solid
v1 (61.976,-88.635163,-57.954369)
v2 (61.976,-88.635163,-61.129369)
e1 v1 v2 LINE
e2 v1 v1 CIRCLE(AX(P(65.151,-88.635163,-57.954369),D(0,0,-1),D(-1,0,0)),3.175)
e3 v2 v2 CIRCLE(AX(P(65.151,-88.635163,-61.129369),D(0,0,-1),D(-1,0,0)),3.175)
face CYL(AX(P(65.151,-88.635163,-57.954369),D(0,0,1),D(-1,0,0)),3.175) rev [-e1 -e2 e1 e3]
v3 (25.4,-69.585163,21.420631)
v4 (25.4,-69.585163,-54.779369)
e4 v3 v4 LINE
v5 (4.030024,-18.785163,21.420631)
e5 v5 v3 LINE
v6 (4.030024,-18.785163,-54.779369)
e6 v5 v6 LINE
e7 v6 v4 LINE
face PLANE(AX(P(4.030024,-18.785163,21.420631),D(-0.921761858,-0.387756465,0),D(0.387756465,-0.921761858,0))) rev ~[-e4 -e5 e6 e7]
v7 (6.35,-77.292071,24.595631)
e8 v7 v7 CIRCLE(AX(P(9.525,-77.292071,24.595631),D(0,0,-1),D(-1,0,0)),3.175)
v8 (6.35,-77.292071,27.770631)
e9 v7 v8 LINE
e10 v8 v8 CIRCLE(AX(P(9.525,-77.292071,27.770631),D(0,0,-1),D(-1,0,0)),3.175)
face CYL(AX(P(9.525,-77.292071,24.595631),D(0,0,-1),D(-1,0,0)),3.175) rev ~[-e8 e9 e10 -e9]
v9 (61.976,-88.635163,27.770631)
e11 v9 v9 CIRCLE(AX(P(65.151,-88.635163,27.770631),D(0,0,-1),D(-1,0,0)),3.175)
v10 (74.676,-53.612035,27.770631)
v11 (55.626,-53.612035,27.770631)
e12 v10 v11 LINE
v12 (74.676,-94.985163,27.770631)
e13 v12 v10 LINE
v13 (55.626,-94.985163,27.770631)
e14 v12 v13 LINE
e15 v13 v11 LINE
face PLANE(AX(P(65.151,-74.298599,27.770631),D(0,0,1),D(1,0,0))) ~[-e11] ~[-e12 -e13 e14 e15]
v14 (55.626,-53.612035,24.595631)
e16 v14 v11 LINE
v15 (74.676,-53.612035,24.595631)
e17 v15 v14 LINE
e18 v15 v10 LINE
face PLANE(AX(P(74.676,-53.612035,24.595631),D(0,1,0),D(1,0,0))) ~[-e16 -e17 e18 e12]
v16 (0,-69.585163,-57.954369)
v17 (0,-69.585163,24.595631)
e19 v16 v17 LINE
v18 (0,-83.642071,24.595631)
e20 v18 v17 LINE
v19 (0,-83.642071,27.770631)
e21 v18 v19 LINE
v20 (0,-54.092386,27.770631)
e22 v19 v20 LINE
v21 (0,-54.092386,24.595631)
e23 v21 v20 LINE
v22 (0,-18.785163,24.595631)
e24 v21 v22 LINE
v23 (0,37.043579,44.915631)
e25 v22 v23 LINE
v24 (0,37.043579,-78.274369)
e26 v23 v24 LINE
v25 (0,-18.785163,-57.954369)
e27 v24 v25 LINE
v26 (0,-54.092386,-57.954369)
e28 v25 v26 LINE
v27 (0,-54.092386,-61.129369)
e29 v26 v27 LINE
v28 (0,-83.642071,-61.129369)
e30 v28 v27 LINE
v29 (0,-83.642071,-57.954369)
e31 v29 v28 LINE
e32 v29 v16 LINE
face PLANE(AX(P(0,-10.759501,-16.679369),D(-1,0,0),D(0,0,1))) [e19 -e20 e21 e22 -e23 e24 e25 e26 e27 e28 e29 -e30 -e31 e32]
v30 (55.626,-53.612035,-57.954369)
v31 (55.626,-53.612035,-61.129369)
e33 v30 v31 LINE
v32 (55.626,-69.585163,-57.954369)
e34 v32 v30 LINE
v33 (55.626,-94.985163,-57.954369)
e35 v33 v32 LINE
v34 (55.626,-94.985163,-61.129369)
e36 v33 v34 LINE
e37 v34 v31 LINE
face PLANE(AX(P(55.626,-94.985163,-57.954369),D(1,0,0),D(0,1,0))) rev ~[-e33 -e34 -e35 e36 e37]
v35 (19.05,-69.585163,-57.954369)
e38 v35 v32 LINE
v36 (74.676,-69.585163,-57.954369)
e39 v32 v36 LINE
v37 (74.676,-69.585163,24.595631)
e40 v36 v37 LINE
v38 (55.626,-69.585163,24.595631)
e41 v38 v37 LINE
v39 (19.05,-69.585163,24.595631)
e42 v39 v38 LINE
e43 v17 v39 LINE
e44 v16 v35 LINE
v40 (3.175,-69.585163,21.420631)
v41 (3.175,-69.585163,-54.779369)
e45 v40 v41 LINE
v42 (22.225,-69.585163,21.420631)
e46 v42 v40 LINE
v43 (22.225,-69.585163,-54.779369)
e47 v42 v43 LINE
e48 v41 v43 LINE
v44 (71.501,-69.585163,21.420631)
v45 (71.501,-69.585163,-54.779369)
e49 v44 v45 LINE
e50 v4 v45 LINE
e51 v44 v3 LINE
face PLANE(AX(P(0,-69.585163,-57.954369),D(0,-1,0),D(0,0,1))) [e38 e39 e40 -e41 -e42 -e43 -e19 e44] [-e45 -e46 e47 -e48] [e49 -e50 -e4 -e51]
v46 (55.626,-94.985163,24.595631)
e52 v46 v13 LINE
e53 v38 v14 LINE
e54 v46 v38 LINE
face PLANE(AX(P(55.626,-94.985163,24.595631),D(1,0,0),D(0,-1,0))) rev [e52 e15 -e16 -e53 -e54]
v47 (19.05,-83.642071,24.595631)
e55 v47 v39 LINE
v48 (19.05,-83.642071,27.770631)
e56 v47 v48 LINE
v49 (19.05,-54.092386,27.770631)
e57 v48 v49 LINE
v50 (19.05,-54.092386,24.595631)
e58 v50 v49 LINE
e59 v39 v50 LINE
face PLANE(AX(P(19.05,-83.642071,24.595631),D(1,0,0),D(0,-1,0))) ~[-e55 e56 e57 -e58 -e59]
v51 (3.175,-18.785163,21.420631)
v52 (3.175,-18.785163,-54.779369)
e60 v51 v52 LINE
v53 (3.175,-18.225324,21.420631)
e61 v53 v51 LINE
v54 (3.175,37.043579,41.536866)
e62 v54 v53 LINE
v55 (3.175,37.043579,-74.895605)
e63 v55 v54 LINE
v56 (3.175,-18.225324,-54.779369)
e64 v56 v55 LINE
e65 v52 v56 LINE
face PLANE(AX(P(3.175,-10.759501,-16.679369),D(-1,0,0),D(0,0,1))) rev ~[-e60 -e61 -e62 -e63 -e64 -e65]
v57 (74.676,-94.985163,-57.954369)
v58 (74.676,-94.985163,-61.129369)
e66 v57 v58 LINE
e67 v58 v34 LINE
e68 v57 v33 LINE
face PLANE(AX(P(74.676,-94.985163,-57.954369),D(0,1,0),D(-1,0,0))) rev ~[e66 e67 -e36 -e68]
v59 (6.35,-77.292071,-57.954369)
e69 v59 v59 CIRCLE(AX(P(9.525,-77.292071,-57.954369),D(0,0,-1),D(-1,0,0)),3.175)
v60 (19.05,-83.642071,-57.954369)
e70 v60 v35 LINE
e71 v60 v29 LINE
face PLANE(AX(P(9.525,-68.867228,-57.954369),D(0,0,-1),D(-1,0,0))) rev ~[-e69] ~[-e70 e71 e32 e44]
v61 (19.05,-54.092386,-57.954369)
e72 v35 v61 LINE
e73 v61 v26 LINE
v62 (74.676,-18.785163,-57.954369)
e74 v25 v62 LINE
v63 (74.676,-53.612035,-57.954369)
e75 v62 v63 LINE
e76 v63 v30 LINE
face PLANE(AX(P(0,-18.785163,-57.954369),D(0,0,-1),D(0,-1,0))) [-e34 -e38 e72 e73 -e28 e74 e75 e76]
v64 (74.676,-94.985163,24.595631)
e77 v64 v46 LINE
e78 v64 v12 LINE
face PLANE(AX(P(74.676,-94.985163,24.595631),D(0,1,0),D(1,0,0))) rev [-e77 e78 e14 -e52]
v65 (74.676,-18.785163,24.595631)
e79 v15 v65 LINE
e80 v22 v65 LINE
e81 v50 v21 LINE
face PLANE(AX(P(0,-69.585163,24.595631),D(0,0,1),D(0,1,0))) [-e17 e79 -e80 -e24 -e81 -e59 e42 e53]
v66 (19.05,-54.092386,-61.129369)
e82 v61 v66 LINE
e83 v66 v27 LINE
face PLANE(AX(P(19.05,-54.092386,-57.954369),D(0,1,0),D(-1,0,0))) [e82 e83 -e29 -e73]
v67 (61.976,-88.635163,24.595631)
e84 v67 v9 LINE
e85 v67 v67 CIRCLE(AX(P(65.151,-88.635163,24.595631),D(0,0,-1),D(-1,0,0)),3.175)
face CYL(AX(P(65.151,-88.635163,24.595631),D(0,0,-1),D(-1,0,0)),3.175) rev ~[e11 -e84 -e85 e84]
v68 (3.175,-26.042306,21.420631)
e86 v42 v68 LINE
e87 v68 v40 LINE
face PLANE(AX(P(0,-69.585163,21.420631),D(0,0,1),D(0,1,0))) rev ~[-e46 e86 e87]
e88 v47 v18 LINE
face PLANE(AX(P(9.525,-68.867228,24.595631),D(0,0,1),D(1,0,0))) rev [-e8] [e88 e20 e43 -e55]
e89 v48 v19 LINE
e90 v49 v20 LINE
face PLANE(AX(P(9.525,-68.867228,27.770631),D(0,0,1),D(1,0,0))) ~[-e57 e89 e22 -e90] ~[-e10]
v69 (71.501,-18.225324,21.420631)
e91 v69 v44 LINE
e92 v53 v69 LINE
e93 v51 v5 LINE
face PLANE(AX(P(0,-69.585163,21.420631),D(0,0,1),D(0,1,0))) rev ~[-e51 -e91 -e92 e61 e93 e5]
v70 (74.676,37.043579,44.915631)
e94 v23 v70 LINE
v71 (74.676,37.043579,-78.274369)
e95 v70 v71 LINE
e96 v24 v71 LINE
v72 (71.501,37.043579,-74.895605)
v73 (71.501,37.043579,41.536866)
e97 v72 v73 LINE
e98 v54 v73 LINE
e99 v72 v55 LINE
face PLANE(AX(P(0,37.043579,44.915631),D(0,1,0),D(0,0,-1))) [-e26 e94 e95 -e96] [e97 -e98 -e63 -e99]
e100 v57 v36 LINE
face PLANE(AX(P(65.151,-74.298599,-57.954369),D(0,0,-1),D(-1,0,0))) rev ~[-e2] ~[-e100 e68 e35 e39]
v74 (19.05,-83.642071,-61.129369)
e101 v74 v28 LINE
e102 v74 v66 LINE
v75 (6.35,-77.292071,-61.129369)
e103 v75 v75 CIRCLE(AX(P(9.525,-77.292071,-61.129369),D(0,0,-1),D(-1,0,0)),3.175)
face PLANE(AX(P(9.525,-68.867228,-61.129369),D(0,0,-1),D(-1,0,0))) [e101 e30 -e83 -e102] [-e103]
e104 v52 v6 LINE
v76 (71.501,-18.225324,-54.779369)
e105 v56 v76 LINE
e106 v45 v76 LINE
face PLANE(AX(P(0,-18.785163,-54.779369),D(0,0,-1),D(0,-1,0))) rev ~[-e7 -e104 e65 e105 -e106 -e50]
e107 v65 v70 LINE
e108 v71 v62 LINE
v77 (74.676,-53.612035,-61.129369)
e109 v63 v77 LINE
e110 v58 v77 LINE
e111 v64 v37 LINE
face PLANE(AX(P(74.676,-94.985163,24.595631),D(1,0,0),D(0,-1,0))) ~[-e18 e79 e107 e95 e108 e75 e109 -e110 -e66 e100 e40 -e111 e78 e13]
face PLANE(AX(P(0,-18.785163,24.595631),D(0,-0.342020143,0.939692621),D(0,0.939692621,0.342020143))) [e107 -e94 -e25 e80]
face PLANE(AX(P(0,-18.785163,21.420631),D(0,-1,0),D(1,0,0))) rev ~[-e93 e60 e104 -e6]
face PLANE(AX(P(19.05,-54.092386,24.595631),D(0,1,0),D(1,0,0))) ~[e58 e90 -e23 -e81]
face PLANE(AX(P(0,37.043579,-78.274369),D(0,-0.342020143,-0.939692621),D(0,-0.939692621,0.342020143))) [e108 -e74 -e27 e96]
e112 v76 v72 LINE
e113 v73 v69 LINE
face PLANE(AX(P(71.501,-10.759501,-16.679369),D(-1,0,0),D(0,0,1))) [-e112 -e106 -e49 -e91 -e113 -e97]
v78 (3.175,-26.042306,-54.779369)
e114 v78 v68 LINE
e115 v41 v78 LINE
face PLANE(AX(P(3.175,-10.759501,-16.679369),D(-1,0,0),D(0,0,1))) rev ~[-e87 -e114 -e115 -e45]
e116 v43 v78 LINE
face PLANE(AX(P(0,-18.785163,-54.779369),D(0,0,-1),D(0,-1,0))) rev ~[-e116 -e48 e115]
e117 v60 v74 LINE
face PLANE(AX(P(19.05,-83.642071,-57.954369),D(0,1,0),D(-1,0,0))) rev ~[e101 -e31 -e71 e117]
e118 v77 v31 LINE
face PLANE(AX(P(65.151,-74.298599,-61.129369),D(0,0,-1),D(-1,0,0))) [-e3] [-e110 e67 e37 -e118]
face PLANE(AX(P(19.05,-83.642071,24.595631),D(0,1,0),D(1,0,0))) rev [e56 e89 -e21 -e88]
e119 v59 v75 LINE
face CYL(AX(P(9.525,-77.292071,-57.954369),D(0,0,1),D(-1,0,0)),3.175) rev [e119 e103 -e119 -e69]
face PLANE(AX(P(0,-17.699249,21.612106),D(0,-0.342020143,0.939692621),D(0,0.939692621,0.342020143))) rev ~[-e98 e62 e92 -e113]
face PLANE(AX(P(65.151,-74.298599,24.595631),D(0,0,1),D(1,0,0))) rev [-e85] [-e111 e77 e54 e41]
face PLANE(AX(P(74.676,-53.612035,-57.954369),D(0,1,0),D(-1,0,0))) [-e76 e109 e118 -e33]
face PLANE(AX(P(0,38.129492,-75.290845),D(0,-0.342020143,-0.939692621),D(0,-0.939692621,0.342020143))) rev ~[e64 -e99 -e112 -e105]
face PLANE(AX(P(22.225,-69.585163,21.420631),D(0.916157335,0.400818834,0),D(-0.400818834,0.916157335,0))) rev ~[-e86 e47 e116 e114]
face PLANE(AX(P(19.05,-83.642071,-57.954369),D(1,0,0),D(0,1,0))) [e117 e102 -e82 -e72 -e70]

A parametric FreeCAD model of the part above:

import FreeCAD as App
import Part
import Sketcher
from FreeCAD import Vector
Q = App.Units.Quantity


def faces_at(feature, points):
    """Names of the faces that lie closest to the given points."""
    faces = feature.Shape.Faces
    near = lambda p: min(range(len(faces)), key=lambda i: faces[i].distToShape(Part.Vertex(*p))[0])
    return sorted({f"Face{near(p) + 1}" for p in points})


def add_polygon(sketch, points):
    """Adds a closed chain of lines whose ends are joined by coincident constraints."""
    first, n = sketch.GeometryCount, len(points)
    for a, b in zip(points, points[1:] + points[:1]):
        sketch.addGeometry(Part.LineSegment(App.Vector(*a, 0), App.Vector(*b, 0)), False)
    for i in range(n):
        sketch.addConstraint(Sketcher.Constraint("Coincident", first + i, 2, first + (i + 1) % n, 1))

doc = App.newDocument("Part")
body = doc.addObject("PartDesign::Body", "Body")

sketch1 = body.newObject("Sketcher::SketchObject", "Sketch")
sketch1.AttachmentSupport = (doc.getObject("YZ_Plane"), [""])
sketch1.MapMode = "FlatFace"
add_polygon(sketch1, [(37.043579, -78.274369), (37.043579, 44.915631), (-18.785163, 24.595631), (-69.585163, 24.595631), (-69.585163, -57.954369), (-18.785163, -57.954369)])
sketch1.addConstraint(Sketcher.Constraint("Vertical", 0))
sketch1.addConstraint(Sketcher.Constraint("Horizontal", 2))
sketch1.addConstraint(Sketcher.Constraint("Vertical", 3))
sketch1.addConstraint(Sketcher.Constraint("Horizontal", 4))
sketch1.addConstraint(Sketcher.Constraint("Vertical", 1, 2, 4, 2))
sketch1.addConstraint(Sketcher.Constraint("Equal", 1, 5))
sketch1.addConstraint(Sketcher.Constraint("DistanceX", 2, 2, 2, 1, Q("2 in")))
sketch1.addConstraint(Sketcher.Constraint("Angle", 1, Q("-160 deg")))
sketch1.addConstraint(Sketcher.Constraint("DistanceY", 0, 1, 0, 2, Q("4.85 in")))
sketch1.addConstraint(Sketcher.Constraint("DistanceY", 3, 2, 3, 1, Q("3.25 in")))
sketch1.addConstraint(Sketcher.Constraint("DistanceX", -1, 1, 0, 2, Q("37.043579 mm")))
sketch1.addConstraint(Sketcher.Constraint("DistanceY", -1, 1, 0, 2, Q("44.915631 mm")))
pad1 = body.newObject("PartDesign::Pad", "Pad")
pad1.Profile = sketch1
pad1.Length = Q("2.94 in")
doc.recompute()

thickness = body.newObject("PartDesign::Thickness", "Thickness")
thickness.Base = (pad1, faces_at(pad1, [(37.338, 37.044, -16.679), (37.338, -69.585, -16.679)]))
thickness.Value = Q("0.125 in")
thickness.Reversed = True
thickness.Join = "Intersection"

sketch2 = body.newObject("Sketcher::SketchObject", "Sketch001")
sketch2.AttachmentSupport = (doc.getObject("XY_Plane"), [""])
sketch2.MapMode = "FlatFace"
sketch2.AttachmentOffset = App.Placement(Vector(0, 0, 21.420631), App.Rotation())
add_polygon(sketch2, [(4.030024, -18.785163), (25.4, -69.585163), (22.225, -69.585163), (0, -18.785163)])
sketch2.addConstraint(Sketcher.Constraint("Horizontal", 1))
sketch2.addConstraint(Sketcher.Constraint("Horizontal", 3))
sketch2.addConstraint(Sketcher.Constraint("PointOnObject", 2, 2, -2))
sketch2.addConstraint(Sketcher.Constraint("DistanceX", -1, 1, 0, 2, Q("1 in")))
sketch2.addConstraint(Sketcher.Constraint("DistanceY", 1, 2, 2, 2, Q("2 in")))
sketch2.addConstraint(Sketcher.Constraint("DistanceX", 1, 2, 1, 1, Q("0.125 in")))
sketch2.addConstraint(Sketcher.Constraint("Distance", 0, Q("55.111849 mm")))
sketch2.addConstraint(Sketcher.Constraint("DistanceY", 0, 2, -1, 1, Q("69.585163 mm")))
pad2 = body.newObject("PartDesign::Pad", "Pad001")
pad2.Profile = sketch2
pad2.Type = "UpToFirst"
pad2.Reversed = True

sketch3 = body.newObject("Sketcher::SketchObject", "Sketch002")
sketch3.AttachmentSupport = (doc.getObject("XY_Plane"), [""])
sketch3.MapMode = "FlatFace"
sketch3.AttachmentOffset = App.Placement(Vector(0, 0, -57.954369), App.Rotation())
add_polygon(sketch3, [(74.676, -53.612035), (74.676, -94.985163), (55.626, -94.985163), (55.626, -53.612035)])
sketch3.addGeometry(Part.Circle(Vector(65.151, -88.635163, 0), Vector(0, 0, 1), 3.175), False)
add_polygon(sketch3, [(19.05, -54.092386), (19.05, -83.642071), (0, -83.642071), (0, -54.092386)])
sketch3.addGeometry(Part.Circle(Vector(9.525, -77.292071, 0), Vector(0, 0, 1), 3.175), False)
sketch3.addConstraint(Sketcher.Constraint("Vertical", 0))
sketch3.addConstraint(Sketcher.Constraint("Horizontal", 1))
sketch3.addConstraint(Sketcher.Constraint("Vertical", 2))
sketch3.addConstraint(Sketcher.Constraint("Horizontal", 3))
sketch3.addConstraint(Sketcher.Constraint("Vertical", 5))
sketch3.addConstraint(Sketcher.Constraint("Horizontal", 6))
sketch3.addConstraint(Sketcher.Constraint("Vertical", 7))
sketch3.addConstraint(Sketcher.Constraint("Horizontal", 8))
sketch3.addConstraint(Sketcher.Constraint("Equal", 4, 9))
sketch3.addConstraint(Sketcher.Constraint("PointOnObject", 6, 2, -2))
sketch3.addConstraint(Sketcher.Constraint("Equal", 3, 6))
sketch3.addConstraint(Sketcher.Constraint("Diameter", 4, Q("0.25 in")))
sketch3.addConstraint(Sketcher.Constraint("DistanceX", 1, 2, 1, 1, Q("0.75 in")))
sketch3.addConstraint(Sketcher.Constraint("DistanceX", -1, 1, 0, 2, Q("2.94 in")))
sketch3.addConstraint(Sketcher.Constraint("DistanceX", 9, 3, 4, 3, Q("2.19 in")))
sketch3.addConstraint(Sketcher.Constraint("DistanceY", 0, 2, 4, 3, Q("0.25 in")))
sketch3.addConstraint(Sketcher.Constraint("DistanceY", 5, 2, 9, 3, Q("0.25 in")))
sketch3.addConstraint(Sketcher.Constraint("DistanceX", -1, 1, 4, 3, Q("2.565 in")))
sketch3.addConstraint(Sketcher.Constraint("DistanceY", 0, 2, 0, 1, Q("41.373128 mm")))
sketch3.addConstraint(Sketcher.Constraint("DistanceY", 5, 2, 5, 1, Q("29.549685 mm")))
sketch3.addConstraint(Sketcher.Constraint("DistanceY", 9, 3, -1, 1, Q("77.292071 mm")))
sketch3.addConstraint(Sketcher.Constraint("DistanceY", 4, 3, 9, 3, Q("11.343092 mm")))
pad3 = body.newObject("PartDesign::Pad", "Pad002")
pad3.Profile = sketch3
pad3.Length = Q("0.125 in")
pad3.Reversed = True
doc.recompute()

datumplane = body.newObject("PartDesign::Plane", "DatumPlane")
datumplane.AttachmentSupport = (doc.getObject("XY_Plane"), [""])
datumplane.MapMode = "FlatFace"
datumplane.AttachmentOffset = App.Placement(Vector(0, 0, -16.679369), App.Rotation())
mirrored = body.newObject("PartDesign::Mirrored", "Mirrored")
mirrored.Originals = [pad3]
mirrored.MirrorPlane = (datumplane, [""])
body.Tip = mirrored

doc.recompute()
